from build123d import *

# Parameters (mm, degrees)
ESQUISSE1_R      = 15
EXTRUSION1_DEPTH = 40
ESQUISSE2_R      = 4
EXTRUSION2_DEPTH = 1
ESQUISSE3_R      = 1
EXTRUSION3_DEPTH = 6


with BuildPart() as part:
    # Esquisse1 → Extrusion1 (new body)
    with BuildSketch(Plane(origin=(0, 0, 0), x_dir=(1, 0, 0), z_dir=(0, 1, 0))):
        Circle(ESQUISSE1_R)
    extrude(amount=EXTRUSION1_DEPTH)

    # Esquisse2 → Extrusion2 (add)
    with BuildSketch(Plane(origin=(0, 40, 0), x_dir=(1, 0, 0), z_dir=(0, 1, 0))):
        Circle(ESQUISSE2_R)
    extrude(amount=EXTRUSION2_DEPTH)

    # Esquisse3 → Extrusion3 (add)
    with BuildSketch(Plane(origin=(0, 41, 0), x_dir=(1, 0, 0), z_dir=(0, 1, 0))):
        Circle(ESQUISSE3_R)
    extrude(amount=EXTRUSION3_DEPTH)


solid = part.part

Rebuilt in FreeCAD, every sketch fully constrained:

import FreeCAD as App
import Part
import Sketcher

V = App.Vector

doc = App.newDocument("Part")
params = doc.addObject("Spreadsheet::Sheet", "Params")
for row, (alias, value) in enumerate([
    ("sketch1_diameter", "30 mm"),
    ("pad1_length", "40 mm"),
    ("sketch2_diameter", "8 mm"),
    ("pad2_length", "1 mm"),
    ("sketch3_diameter", "2 mm"),
    ("pad3_length", "6 mm"),
], start=1):
    params.set(f"A{row}", alias)
    params.set(f"B{row}", "=" + value)
    params.setAlias(f"B{row}", alias)

body = doc.addObject("PartDesign::Body", "Body")

# Sketch on XZ plane
sketch1 = body.newObject("Sketcher::SketchObject", "Sketch")
sketch1.AttachmentSupport = (doc.getObject("XZ_Plane"), [""])
sketch1.MapMode = "FlatFace"
sketch1.addGeometry(Part.Circle(V(0, 0, 0), V(0, 0, 1), 15), False)
sketch1.addConstraint(Sketcher.Constraint("Coincident", 0, 3, -1, 1))
sketch1.addConstraint(Sketcher.Constraint("Diameter", 0, 30.0))
sketch1.setExpression("Constraints[1]", "Params.sketch1_diameter")
pad1 = body.newObject("PartDesign::Pad", "Pad")
pad1.Profile = sketch1
pad1.setExpression("Length", "Params.pad1_length")
pad1.Reversed = True

# Sketch on XZ plane
sketch2 = body.newObject("Sketcher::SketchObject", "Sketch001")
sketch2.AttachmentSupport = (doc.getObject("XZ_Plane"), [""])
sketch2.MapMode = "FlatFace"
sketch2.AttachmentOffset = App.Placement(V(0, 0, -40), App.Rotation())
sketch2.addGeometry(Part.Circle(V(0, 0, 0), V(0, 0, 1), 4), False)
sketch2.addConstraint(Sketcher.Constraint("Coincident", 0, 3, -1, 1))
sketch2.addConstraint(Sketcher.Constraint("Diameter", 0, 8.0))
sketch2.setExpression("Constraints[1]", "Params.sketch2_diameter")
pad2 = body.newObject("PartDesign::Pad", "Pad001")
pad2.Profile = sketch2
pad2.setExpression("Length", "Params.pad2_length")
pad2.Reversed = True

# Sketch on XZ plane
sketch3 = body.newObject("Sketcher::SketchObject", "Sketch002")
sketch3.AttachmentSupport = (doc.getObject("XZ_Plane"), [""])
sketch3.MapMode = "FlatFace"
sketch3.AttachmentOffset = App.Placement(V(0, 0, -41), App.Rotation())
sketch3.addGeometry(Part.Circle(V(0, 0, 0), V(0, 0, 1), 1), False)
sketch3.addConstraint(Sketcher.Constraint("Coincident", 0, 3, -1, 1))
sketch3.addConstraint(Sketcher.Constraint("Diameter", 0, 2.0))
sketch3.setExpression("Constraints[1]", "Params.sketch3_diameter")
pad3 = body.newObject("PartDesign::Pad", "Pad002")
pad3.Profile = sketch3
pad3.setExpression("Length", "Params.pad3_length")
pad3.Reversed = True

doc.recompute()
